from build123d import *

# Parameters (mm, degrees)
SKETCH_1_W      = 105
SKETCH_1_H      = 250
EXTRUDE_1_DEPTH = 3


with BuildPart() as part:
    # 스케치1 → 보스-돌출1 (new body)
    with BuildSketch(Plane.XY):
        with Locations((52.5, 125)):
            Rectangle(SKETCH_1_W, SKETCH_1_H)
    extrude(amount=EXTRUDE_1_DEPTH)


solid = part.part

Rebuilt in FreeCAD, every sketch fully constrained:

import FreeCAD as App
import Part
import Sketcher


def add_polygon(sketch, points):
    """Adds a closed chain of lines whose ends are joined by coincident constraints."""
    first, n = sketch.GeometryCount, len(points)
    for a, b in zip(points, points[1:] + points[:1]):
        sketch.addGeometry(Part.LineSegment(App.Vector(*a, 0), App.Vector(*b, 0)), False)
    for i in range(n):
        sketch.addConstraint(Sketcher.Constraint("Coincident", first + i, 2, first + (i + 1) % n, 1))

doc = App.newDocument("Part")
body = doc.addObject("PartDesign::Body", "Body")

# Sketch on XY plane
sketch1 = doc.addObject("Sketcher::SketchObject", "Sketch")
body.addObject(sketch1)
sketch1.AttachmentSupport = (doc.XY_Plane, [""])
sketch1.MapMode = "FlatFace"
add_polygon(sketch1, [(0, 250), (0, 0), (105, 0), (105, 250)])  # lines 0-3
sketch1.addConstraint([
    Sketcher.Constraint("Vertical", 0),
    Sketcher.Constraint("Horizontal", 1),
    Sketcher.Constraint("Vertical", 2),
    Sketcher.Constraint("Horizontal", 3),
    Sketcher.Constraint("Coincident", 0, 2, -1, 1),
    Sketcher.Constraint("DistanceX", 1, 1, 1, 2, 105.0),
    Sketcher.Constraint("DistanceY", 0, 2, 0, 1, 250.0),
])
pad1 = doc.addObject("PartDesign::Pad", "Pad")
body.addObject(pad1)
pad1.Profile = sketch1
pad1.Length = 3

doc.recompute()
